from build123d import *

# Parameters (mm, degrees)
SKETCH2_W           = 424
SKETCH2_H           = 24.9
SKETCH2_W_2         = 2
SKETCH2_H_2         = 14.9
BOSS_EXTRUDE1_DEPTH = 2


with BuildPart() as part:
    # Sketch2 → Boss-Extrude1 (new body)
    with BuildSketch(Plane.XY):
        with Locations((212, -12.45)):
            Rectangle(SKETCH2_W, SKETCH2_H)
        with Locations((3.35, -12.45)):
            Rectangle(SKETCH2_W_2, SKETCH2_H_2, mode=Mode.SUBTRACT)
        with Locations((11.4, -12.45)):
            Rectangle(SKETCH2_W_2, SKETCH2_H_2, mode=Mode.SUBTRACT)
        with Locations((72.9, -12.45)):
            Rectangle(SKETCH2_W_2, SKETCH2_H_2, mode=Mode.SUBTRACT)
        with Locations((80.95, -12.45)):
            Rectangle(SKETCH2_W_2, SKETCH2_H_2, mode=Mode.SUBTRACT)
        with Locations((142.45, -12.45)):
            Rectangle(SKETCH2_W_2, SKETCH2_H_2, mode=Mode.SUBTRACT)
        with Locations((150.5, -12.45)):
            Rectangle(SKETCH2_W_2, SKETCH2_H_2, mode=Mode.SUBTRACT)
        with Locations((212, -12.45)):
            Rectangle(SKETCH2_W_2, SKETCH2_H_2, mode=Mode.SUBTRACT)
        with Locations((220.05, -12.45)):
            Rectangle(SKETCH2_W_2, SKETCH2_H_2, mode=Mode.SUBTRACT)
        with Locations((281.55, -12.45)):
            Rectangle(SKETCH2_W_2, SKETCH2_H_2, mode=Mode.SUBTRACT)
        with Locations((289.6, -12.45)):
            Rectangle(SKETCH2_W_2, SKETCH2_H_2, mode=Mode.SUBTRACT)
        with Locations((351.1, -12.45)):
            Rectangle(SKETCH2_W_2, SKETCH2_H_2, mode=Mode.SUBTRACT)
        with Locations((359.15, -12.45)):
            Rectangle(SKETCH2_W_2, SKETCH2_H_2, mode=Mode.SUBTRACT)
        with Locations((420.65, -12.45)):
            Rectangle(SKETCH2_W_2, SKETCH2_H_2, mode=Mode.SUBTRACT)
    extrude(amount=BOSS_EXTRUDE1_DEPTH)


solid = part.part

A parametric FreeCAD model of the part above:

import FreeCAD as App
import Part
import Sketcher
from FreeCAD import Vector


def add_polygon(sketch, points):
    """Adds a closed chain of lines whose ends are joined by coincident constraints."""
    first, n = sketch.GeometryCount, len(points)
    for a, b in zip(points, points[1:] + points[:1]):
        sketch.addGeometry(Part.LineSegment(App.Vector(*a, 0), App.Vector(*b, 0)), False)
    for i in range(n):
        sketch.addConstraint(Sketcher.Constraint("Coincident", first + i, 2, first + (i + 1) % n, 1))

doc = App.newDocument("Part")
body = doc.addObject("PartDesign::Body", "Body")

# Sketch on XY plane
sketch1 = body.newObject("Sketcher::SketchObject", "Sketch")
sketch1.AttachmentSupport = (doc.getObject("XY_Plane"), [""])
sketch1.MapMode = "FlatFace"
add_polygon(sketch1, [(0, 0), (0, -24.9), (424, -24.9), (424, 0)])  # lines 0-3
add_polygon(sketch1, [(4.3, -19.9), (2.4, -19.9), (2.4, -5), (4.3, -5)])  # lines 4-7
add_polygon(sketch1, [(12.4, -19.9), (10.4, -19.9), (10.4, -5), (12.4, -5)])  # lines 8-11
add_polygon(sketch1, [(73.9, -19.9), (71.9, -19.9), (71.9, -5), (73.9, -5)])  # lines 12-15
add_polygon(sketch1, [(82, -19.9), (80, -19.9), (80, -5), (82, -5)])  # lines 16-19
add_polygon(sketch1, [(143.4, -19.9), (141.4, -19.9), (141.4, -5), (143.4, -5)])  # lines 20-23
add_polygon(sketch1, [(151.5, -19.9), (149.5, -19.9), (149.5, -5), (151.5, -5)])  # lines 24-27
add_polygon(sketch1, [(213, -19.9), (211, -19.9), (211, -5), (213, -5)])  # lines 28-31
add_polygon(sketch1, [(221.1, -19.9), (219.1, -19.9), (219.1, -5), (221.1, -5)])  # lines 32-35
add_polygon(sketch1, [(282.6, -19.9), (280.6, -19.9), (280.6, -5), (282.6, -5)])  # lines 36-39
add_polygon(sketch1, [(290.6, -19.9), (288.6, -19.9), (288.6, -5), (290.6, -5)])  # lines 40-43
add_polygon(sketch1, [(352.1, -19.9), (350.1, -19.9), (350.1, -5), (352.1, -5)])  # lines 44-47
add_polygon(sketch1, [(360.1, -19.9), (358.1, -19.9), (358.1, -5), (360.1, -5)])  # lines 48-51
add_polygon(sketch1, [(421.6, -19.9), (419.6, -19.9), (419.6, -5), (421.6, -5)])  # lines 52-55
sketch1.addConstraint(Sketcher.Constraint("Vertical", 0))
sketch1.addConstraint(Sketcher.Constraint("Horizontal", 1))
sketch1.addConstraint(Sketcher.Constraint("Vertical", 2))
sketch1.addConstraint(Sketcher.Constraint("Horizontal", 3))
sketch1.addConstraint(Sketcher.Constraint("Horizontal", 4))
sketch1.addConstraint(Sketcher.Constraint("Vertical", 5))
sketch1.addConstraint(Sketcher.Constraint("Horizontal", 6))
sketch1.addConstraint(Sketcher.Constraint("Vertical", 7))
sketch1.addConstraint(Sketcher.Constraint("Horizontal", 8))
sketch1.addConstraint(Sketcher.Constraint("Vertical", 9))
sketch1.addConstraint(Sketcher.Constraint("Horizontal", 10))
sketch1.addConstraint(Sketcher.Constraint("Vertical", 11))
sketch1.addConstraint(Sketcher.Constraint("Horizontal", 12))
sketch1.addConstraint(Sketcher.Constraint("Vertical", 13))
sketch1.addConstraint(Sketcher.Constraint("Horizontal", 14))
sketch1.addConstraint(Sketcher.Constraint("Vertical", 15))
sketch1.addConstraint(Sketcher.Constraint("Horizontal", 16))
sketch1.addConstraint(Sketcher.Constraint("Vertical", 17))
sketch1.addConstraint(Sketcher.Constraint("Horizontal", 18))
sketch1.addConstraint(Sketcher.Constraint("Vertical", 19))
sketch1.addConstraint(Sketcher.Constraint("Horizontal", 20))
sketch1.addConstraint(Sketcher.Constraint("Vertical", 21))
sketch1.addConstraint(Sketcher.Constraint("Horizontal", 22))
sketch1.addConstraint(Sketcher.Constraint("Vertical", 23))
sketch1.addConstraint(Sketcher.Constraint("Horizontal", 24))
sketch1.addConstraint(Sketcher.Constraint("Vertical", 25))
sketch1.addConstraint(Sketcher.Constraint("Horizontal", 26))
sketch1.addConstraint(Sketcher.Constraint("Vertical", 27))
sketch1.addConstraint(Sketcher.Constraint("Horizontal", 28))
sketch1.addConstraint(Sketcher.Constraint("Vertical", 29))
sketch1.addConstraint(Sketcher.Constraint("Horizontal", 30))
sketch1.addConstraint(Sketcher.Constraint("Vertical", 31))
sketch1.addConstraint(Sketcher.Constraint("Horizontal", 32))
sketch1.addConstraint(Sketcher.Constraint("Vertical", 33))
sketch1.addConstraint(Sketcher.Constraint("Horizontal", 34))
sketch1.addConstraint(Sketcher.Constraint("Vertical", 35))
sketch1.addConstraint(Sketcher.Constraint("Horizontal", 36))
sketch1.addConstraint(Sketcher.Constraint("Vertical", 37))
sketch1.addConstraint(Sketcher.Constraint("Horizontal", 38))
sketch1.addConstraint(Sketcher.Constraint("Vertical", 39))
sketch1.addConstraint(Sketcher.Constraint("Horizontal", 40))
sketch1.addConstraint(Sketcher.Constraint("Vertical", 41))
sketch1.addConstraint(Sketcher.Constraint("Horizontal", 42))
sketch1.addConstraint(Sketcher.Constraint("Vertical", 43))
sketch1.addConstraint(Sketcher.Constraint("Horizontal", 44))
sketch1.addConstraint(Sketcher.Constraint("Vertical", 45))
sketch1.addConstraint(Sketcher.Constraint("Horizontal", 46))
sketch1.addConstraint(Sketcher.Constraint("Vertical", 47))
sketch1.addConstraint(Sketcher.Constraint("Horizontal", 48))
sketch1.addConstraint(Sketcher.Constraint("Vertical", 49))
sketch1.addConstraint(Sketcher.Constraint("Horizontal", 50))
sketch1.addConstraint(Sketcher.Constraint("Vertical", 51))
sketch1.addConstraint(Sketcher.Constraint("Horizontal", 52))
sketch1.addConstraint(Sketcher.Constraint("Vertical", 53))
sketch1.addConstraint(Sketcher.Constraint("Horizontal", 54))
sketch1.addConstraint(Sketcher.Constraint("Vertical", 55))
sketch1.addConstraint(Sketcher.Constraint("Coincident", 3, 2, -1, 1))
sketch1.addConstraint(Sketcher.Constraint("Horizontal", 7, 2, 8, 2))
sketch1.addConstraint(Sketcher.Constraint("Horizontal", 6, 2, 9, 2))
sketch1.addConstraint(Sketcher.Constraint("Horizontal", 11, 2, 12, 2))
sketch1.addConstraint(Sketcher.Constraint("Horizontal", 10, 2, 13, 2))
sketch1.addConstraint(Sketcher.Constraint("Horizontal", 15, 2, 16, 2))
sketch1.addConstraint(Sketcher.Constraint("Horizontal", 14, 2, 17, 2))
sketch1.addConstraint(Sketcher.Constraint("Horizontal", 19, 2, 20, 2))
sketch1.addConstraint(Sketcher.Constraint("Horizontal", 18, 2, 21, 2))
sketch1.addConstraint(Sketcher.Constraint("Horizontal", 23, 2, 24, 2))
sketch1.addConstraint(Sketcher.Constraint("Horizontal", 22, 2, 25, 2))
sketch1.addConstraint(Sketcher.Constraint("Horizontal", 27, 2, 28, 2))
sketch1.addConstraint(Sketcher.Constraint("Horizontal", 26, 2, 29, 2))
sketch1.addConstraint(Sketcher.Constraint("Horizontal", 31, 2, 32, 2))
sketch1.addConstraint(Sketcher.Constraint("Horizontal", 30, 2, 33, 2))
sketch1.addConstraint(Sketcher.Constraint("Horizontal", 35, 2, 36, 2))
sketch1.addConstraint(Sketcher.Constraint("Horizontal", 34, 2, 37, 2))
sketch1.addConstraint(Sketcher.Constraint("Horizontal", 39, 2, 40, 2))
sketch1.addConstraint(Sketcher.Constraint("Horizontal", 38, 2, 41, 2))
sketch1.addConstraint(Sketcher.Constraint("Horizontal", 43, 2, 44, 2))
sketch1.addConstraint(Sketcher.Constraint("Horizontal", 42, 2, 45, 2))
sketch1.addConstraint(Sketcher.Constraint("Horizontal", 47, 2, 48, 2))
sketch1.addConstraint(Sketcher.Constraint("Horizontal", 46, 2, 49, 2))
sketch1.addConstraint(Sketcher.Constraint("Horizontal", 51, 2, 52, 2))
sketch1.addConstraint(Sketcher.Constraint("Horizontal", 50, 2, 53, 2))
sketch1.addConstraint(Sketcher.Constraint("Equal", 6, 8))
sketch1.addConstraint(Sketcher.Constraint("Equal", 10, 12))
sketch1.addConstraint(Sketcher.Constraint("Equal", 14, 16))
sketch1.addConstraint(Sketcher.Constraint("Equal", 18, 20))
sketch1.addConstraint(Sketcher.Constraint("Equal", 22, 24))
sketch1.addConstraint(Sketcher.Constraint("Equal", 26, 28))
sketch1.addConstraint(Sketcher.Constraint("Equal", 30, 32))
sketch1.addConstraint(Sketcher.Constraint("Equal", 34, 36))
sketch1.addConstraint(Sketcher.Constraint("Equal", 38, 40))
sketch1.addConstraint(Sketcher.Constraint("Equal", 42, 44))
sketch1.addConstraint(Sketcher.Constraint("Equal", 46, 48))
sketch1.addConstraint(Sketcher.Constraint("Equal", 50, 52))
sketch1.addConstraint(Sketcher.Constraint("DistanceX", 1, 1, 1, 2, 424.0))
sketch1.addConstraint(Sketcher.Constraint("DistanceX", 4, 2, 4, 1, 2.0))
sketch1.addConstraint(Sketcher.Constraint("DistanceY", 0, 2, 0, 1, 24.9))
sketch1.addConstraint(Sketcher.Constraint("DistanceY", 5, 1, 5, 2, 14.9))
sketch1.addConstraint(Sketcher.Constraint("DistanceY", 5, 2, -1, 1, 5.0))
sketch1.addConstraint(Sketcher.Constraint("DistanceX", -1, 1, 28, 2, 211.0))
sketch1.addConstraint(Sketcher.Constraint("DistanceX", -1, 1, 8, 2, 10.4))
sketch1.addConstraint(Sketcher.Constraint("DistanceX", -1, 1, 12, 2, 71.9))
sketch1.addConstraint(Sketcher.Constraint("DistanceX", -1, 1, 24, 2, 149.5))
sketch1.addConstraint(Sketcher.Constraint("DistanceX", -1, 1, 40, 2, 288.6))
sketch1.addConstraint(Sketcher.Constraint("DistanceX", -1, 1, 44, 2, 350.1))
sketch1.addConstraint(Sketcher.Constraint("DistanceX", 19, 2, 20, 2, 59.5))
sketch1.addConstraint(Sketcher.Constraint("DistanceX", 35, 2, 36, 2, 59.5))
sketch1.addConstraint(Sketcher.Constraint("DistanceX", 51, 2, 52, 2, 59.5))
sketch1.addConstraint(Sketcher.Constraint("DistanceX", -1, 1, 4, 2, 2.35))
sketch1.addConstraint(Sketcher.Constraint("DistanceX", -1, 1, 16, 2, 79.95))
sketch1.addConstraint(Sketcher.Constraint("DistanceX", -1, 1, 32, 2, 219.05))
sketch1.addConstraint(Sketcher.Constraint("DistanceX", -1, 1, 48, 2, 358.15))
pad1 = body.newObject("PartDesign::Pad", "Pad")
pad1.Profile = sketch1
pad1.Length = 2

doc.recompute()
